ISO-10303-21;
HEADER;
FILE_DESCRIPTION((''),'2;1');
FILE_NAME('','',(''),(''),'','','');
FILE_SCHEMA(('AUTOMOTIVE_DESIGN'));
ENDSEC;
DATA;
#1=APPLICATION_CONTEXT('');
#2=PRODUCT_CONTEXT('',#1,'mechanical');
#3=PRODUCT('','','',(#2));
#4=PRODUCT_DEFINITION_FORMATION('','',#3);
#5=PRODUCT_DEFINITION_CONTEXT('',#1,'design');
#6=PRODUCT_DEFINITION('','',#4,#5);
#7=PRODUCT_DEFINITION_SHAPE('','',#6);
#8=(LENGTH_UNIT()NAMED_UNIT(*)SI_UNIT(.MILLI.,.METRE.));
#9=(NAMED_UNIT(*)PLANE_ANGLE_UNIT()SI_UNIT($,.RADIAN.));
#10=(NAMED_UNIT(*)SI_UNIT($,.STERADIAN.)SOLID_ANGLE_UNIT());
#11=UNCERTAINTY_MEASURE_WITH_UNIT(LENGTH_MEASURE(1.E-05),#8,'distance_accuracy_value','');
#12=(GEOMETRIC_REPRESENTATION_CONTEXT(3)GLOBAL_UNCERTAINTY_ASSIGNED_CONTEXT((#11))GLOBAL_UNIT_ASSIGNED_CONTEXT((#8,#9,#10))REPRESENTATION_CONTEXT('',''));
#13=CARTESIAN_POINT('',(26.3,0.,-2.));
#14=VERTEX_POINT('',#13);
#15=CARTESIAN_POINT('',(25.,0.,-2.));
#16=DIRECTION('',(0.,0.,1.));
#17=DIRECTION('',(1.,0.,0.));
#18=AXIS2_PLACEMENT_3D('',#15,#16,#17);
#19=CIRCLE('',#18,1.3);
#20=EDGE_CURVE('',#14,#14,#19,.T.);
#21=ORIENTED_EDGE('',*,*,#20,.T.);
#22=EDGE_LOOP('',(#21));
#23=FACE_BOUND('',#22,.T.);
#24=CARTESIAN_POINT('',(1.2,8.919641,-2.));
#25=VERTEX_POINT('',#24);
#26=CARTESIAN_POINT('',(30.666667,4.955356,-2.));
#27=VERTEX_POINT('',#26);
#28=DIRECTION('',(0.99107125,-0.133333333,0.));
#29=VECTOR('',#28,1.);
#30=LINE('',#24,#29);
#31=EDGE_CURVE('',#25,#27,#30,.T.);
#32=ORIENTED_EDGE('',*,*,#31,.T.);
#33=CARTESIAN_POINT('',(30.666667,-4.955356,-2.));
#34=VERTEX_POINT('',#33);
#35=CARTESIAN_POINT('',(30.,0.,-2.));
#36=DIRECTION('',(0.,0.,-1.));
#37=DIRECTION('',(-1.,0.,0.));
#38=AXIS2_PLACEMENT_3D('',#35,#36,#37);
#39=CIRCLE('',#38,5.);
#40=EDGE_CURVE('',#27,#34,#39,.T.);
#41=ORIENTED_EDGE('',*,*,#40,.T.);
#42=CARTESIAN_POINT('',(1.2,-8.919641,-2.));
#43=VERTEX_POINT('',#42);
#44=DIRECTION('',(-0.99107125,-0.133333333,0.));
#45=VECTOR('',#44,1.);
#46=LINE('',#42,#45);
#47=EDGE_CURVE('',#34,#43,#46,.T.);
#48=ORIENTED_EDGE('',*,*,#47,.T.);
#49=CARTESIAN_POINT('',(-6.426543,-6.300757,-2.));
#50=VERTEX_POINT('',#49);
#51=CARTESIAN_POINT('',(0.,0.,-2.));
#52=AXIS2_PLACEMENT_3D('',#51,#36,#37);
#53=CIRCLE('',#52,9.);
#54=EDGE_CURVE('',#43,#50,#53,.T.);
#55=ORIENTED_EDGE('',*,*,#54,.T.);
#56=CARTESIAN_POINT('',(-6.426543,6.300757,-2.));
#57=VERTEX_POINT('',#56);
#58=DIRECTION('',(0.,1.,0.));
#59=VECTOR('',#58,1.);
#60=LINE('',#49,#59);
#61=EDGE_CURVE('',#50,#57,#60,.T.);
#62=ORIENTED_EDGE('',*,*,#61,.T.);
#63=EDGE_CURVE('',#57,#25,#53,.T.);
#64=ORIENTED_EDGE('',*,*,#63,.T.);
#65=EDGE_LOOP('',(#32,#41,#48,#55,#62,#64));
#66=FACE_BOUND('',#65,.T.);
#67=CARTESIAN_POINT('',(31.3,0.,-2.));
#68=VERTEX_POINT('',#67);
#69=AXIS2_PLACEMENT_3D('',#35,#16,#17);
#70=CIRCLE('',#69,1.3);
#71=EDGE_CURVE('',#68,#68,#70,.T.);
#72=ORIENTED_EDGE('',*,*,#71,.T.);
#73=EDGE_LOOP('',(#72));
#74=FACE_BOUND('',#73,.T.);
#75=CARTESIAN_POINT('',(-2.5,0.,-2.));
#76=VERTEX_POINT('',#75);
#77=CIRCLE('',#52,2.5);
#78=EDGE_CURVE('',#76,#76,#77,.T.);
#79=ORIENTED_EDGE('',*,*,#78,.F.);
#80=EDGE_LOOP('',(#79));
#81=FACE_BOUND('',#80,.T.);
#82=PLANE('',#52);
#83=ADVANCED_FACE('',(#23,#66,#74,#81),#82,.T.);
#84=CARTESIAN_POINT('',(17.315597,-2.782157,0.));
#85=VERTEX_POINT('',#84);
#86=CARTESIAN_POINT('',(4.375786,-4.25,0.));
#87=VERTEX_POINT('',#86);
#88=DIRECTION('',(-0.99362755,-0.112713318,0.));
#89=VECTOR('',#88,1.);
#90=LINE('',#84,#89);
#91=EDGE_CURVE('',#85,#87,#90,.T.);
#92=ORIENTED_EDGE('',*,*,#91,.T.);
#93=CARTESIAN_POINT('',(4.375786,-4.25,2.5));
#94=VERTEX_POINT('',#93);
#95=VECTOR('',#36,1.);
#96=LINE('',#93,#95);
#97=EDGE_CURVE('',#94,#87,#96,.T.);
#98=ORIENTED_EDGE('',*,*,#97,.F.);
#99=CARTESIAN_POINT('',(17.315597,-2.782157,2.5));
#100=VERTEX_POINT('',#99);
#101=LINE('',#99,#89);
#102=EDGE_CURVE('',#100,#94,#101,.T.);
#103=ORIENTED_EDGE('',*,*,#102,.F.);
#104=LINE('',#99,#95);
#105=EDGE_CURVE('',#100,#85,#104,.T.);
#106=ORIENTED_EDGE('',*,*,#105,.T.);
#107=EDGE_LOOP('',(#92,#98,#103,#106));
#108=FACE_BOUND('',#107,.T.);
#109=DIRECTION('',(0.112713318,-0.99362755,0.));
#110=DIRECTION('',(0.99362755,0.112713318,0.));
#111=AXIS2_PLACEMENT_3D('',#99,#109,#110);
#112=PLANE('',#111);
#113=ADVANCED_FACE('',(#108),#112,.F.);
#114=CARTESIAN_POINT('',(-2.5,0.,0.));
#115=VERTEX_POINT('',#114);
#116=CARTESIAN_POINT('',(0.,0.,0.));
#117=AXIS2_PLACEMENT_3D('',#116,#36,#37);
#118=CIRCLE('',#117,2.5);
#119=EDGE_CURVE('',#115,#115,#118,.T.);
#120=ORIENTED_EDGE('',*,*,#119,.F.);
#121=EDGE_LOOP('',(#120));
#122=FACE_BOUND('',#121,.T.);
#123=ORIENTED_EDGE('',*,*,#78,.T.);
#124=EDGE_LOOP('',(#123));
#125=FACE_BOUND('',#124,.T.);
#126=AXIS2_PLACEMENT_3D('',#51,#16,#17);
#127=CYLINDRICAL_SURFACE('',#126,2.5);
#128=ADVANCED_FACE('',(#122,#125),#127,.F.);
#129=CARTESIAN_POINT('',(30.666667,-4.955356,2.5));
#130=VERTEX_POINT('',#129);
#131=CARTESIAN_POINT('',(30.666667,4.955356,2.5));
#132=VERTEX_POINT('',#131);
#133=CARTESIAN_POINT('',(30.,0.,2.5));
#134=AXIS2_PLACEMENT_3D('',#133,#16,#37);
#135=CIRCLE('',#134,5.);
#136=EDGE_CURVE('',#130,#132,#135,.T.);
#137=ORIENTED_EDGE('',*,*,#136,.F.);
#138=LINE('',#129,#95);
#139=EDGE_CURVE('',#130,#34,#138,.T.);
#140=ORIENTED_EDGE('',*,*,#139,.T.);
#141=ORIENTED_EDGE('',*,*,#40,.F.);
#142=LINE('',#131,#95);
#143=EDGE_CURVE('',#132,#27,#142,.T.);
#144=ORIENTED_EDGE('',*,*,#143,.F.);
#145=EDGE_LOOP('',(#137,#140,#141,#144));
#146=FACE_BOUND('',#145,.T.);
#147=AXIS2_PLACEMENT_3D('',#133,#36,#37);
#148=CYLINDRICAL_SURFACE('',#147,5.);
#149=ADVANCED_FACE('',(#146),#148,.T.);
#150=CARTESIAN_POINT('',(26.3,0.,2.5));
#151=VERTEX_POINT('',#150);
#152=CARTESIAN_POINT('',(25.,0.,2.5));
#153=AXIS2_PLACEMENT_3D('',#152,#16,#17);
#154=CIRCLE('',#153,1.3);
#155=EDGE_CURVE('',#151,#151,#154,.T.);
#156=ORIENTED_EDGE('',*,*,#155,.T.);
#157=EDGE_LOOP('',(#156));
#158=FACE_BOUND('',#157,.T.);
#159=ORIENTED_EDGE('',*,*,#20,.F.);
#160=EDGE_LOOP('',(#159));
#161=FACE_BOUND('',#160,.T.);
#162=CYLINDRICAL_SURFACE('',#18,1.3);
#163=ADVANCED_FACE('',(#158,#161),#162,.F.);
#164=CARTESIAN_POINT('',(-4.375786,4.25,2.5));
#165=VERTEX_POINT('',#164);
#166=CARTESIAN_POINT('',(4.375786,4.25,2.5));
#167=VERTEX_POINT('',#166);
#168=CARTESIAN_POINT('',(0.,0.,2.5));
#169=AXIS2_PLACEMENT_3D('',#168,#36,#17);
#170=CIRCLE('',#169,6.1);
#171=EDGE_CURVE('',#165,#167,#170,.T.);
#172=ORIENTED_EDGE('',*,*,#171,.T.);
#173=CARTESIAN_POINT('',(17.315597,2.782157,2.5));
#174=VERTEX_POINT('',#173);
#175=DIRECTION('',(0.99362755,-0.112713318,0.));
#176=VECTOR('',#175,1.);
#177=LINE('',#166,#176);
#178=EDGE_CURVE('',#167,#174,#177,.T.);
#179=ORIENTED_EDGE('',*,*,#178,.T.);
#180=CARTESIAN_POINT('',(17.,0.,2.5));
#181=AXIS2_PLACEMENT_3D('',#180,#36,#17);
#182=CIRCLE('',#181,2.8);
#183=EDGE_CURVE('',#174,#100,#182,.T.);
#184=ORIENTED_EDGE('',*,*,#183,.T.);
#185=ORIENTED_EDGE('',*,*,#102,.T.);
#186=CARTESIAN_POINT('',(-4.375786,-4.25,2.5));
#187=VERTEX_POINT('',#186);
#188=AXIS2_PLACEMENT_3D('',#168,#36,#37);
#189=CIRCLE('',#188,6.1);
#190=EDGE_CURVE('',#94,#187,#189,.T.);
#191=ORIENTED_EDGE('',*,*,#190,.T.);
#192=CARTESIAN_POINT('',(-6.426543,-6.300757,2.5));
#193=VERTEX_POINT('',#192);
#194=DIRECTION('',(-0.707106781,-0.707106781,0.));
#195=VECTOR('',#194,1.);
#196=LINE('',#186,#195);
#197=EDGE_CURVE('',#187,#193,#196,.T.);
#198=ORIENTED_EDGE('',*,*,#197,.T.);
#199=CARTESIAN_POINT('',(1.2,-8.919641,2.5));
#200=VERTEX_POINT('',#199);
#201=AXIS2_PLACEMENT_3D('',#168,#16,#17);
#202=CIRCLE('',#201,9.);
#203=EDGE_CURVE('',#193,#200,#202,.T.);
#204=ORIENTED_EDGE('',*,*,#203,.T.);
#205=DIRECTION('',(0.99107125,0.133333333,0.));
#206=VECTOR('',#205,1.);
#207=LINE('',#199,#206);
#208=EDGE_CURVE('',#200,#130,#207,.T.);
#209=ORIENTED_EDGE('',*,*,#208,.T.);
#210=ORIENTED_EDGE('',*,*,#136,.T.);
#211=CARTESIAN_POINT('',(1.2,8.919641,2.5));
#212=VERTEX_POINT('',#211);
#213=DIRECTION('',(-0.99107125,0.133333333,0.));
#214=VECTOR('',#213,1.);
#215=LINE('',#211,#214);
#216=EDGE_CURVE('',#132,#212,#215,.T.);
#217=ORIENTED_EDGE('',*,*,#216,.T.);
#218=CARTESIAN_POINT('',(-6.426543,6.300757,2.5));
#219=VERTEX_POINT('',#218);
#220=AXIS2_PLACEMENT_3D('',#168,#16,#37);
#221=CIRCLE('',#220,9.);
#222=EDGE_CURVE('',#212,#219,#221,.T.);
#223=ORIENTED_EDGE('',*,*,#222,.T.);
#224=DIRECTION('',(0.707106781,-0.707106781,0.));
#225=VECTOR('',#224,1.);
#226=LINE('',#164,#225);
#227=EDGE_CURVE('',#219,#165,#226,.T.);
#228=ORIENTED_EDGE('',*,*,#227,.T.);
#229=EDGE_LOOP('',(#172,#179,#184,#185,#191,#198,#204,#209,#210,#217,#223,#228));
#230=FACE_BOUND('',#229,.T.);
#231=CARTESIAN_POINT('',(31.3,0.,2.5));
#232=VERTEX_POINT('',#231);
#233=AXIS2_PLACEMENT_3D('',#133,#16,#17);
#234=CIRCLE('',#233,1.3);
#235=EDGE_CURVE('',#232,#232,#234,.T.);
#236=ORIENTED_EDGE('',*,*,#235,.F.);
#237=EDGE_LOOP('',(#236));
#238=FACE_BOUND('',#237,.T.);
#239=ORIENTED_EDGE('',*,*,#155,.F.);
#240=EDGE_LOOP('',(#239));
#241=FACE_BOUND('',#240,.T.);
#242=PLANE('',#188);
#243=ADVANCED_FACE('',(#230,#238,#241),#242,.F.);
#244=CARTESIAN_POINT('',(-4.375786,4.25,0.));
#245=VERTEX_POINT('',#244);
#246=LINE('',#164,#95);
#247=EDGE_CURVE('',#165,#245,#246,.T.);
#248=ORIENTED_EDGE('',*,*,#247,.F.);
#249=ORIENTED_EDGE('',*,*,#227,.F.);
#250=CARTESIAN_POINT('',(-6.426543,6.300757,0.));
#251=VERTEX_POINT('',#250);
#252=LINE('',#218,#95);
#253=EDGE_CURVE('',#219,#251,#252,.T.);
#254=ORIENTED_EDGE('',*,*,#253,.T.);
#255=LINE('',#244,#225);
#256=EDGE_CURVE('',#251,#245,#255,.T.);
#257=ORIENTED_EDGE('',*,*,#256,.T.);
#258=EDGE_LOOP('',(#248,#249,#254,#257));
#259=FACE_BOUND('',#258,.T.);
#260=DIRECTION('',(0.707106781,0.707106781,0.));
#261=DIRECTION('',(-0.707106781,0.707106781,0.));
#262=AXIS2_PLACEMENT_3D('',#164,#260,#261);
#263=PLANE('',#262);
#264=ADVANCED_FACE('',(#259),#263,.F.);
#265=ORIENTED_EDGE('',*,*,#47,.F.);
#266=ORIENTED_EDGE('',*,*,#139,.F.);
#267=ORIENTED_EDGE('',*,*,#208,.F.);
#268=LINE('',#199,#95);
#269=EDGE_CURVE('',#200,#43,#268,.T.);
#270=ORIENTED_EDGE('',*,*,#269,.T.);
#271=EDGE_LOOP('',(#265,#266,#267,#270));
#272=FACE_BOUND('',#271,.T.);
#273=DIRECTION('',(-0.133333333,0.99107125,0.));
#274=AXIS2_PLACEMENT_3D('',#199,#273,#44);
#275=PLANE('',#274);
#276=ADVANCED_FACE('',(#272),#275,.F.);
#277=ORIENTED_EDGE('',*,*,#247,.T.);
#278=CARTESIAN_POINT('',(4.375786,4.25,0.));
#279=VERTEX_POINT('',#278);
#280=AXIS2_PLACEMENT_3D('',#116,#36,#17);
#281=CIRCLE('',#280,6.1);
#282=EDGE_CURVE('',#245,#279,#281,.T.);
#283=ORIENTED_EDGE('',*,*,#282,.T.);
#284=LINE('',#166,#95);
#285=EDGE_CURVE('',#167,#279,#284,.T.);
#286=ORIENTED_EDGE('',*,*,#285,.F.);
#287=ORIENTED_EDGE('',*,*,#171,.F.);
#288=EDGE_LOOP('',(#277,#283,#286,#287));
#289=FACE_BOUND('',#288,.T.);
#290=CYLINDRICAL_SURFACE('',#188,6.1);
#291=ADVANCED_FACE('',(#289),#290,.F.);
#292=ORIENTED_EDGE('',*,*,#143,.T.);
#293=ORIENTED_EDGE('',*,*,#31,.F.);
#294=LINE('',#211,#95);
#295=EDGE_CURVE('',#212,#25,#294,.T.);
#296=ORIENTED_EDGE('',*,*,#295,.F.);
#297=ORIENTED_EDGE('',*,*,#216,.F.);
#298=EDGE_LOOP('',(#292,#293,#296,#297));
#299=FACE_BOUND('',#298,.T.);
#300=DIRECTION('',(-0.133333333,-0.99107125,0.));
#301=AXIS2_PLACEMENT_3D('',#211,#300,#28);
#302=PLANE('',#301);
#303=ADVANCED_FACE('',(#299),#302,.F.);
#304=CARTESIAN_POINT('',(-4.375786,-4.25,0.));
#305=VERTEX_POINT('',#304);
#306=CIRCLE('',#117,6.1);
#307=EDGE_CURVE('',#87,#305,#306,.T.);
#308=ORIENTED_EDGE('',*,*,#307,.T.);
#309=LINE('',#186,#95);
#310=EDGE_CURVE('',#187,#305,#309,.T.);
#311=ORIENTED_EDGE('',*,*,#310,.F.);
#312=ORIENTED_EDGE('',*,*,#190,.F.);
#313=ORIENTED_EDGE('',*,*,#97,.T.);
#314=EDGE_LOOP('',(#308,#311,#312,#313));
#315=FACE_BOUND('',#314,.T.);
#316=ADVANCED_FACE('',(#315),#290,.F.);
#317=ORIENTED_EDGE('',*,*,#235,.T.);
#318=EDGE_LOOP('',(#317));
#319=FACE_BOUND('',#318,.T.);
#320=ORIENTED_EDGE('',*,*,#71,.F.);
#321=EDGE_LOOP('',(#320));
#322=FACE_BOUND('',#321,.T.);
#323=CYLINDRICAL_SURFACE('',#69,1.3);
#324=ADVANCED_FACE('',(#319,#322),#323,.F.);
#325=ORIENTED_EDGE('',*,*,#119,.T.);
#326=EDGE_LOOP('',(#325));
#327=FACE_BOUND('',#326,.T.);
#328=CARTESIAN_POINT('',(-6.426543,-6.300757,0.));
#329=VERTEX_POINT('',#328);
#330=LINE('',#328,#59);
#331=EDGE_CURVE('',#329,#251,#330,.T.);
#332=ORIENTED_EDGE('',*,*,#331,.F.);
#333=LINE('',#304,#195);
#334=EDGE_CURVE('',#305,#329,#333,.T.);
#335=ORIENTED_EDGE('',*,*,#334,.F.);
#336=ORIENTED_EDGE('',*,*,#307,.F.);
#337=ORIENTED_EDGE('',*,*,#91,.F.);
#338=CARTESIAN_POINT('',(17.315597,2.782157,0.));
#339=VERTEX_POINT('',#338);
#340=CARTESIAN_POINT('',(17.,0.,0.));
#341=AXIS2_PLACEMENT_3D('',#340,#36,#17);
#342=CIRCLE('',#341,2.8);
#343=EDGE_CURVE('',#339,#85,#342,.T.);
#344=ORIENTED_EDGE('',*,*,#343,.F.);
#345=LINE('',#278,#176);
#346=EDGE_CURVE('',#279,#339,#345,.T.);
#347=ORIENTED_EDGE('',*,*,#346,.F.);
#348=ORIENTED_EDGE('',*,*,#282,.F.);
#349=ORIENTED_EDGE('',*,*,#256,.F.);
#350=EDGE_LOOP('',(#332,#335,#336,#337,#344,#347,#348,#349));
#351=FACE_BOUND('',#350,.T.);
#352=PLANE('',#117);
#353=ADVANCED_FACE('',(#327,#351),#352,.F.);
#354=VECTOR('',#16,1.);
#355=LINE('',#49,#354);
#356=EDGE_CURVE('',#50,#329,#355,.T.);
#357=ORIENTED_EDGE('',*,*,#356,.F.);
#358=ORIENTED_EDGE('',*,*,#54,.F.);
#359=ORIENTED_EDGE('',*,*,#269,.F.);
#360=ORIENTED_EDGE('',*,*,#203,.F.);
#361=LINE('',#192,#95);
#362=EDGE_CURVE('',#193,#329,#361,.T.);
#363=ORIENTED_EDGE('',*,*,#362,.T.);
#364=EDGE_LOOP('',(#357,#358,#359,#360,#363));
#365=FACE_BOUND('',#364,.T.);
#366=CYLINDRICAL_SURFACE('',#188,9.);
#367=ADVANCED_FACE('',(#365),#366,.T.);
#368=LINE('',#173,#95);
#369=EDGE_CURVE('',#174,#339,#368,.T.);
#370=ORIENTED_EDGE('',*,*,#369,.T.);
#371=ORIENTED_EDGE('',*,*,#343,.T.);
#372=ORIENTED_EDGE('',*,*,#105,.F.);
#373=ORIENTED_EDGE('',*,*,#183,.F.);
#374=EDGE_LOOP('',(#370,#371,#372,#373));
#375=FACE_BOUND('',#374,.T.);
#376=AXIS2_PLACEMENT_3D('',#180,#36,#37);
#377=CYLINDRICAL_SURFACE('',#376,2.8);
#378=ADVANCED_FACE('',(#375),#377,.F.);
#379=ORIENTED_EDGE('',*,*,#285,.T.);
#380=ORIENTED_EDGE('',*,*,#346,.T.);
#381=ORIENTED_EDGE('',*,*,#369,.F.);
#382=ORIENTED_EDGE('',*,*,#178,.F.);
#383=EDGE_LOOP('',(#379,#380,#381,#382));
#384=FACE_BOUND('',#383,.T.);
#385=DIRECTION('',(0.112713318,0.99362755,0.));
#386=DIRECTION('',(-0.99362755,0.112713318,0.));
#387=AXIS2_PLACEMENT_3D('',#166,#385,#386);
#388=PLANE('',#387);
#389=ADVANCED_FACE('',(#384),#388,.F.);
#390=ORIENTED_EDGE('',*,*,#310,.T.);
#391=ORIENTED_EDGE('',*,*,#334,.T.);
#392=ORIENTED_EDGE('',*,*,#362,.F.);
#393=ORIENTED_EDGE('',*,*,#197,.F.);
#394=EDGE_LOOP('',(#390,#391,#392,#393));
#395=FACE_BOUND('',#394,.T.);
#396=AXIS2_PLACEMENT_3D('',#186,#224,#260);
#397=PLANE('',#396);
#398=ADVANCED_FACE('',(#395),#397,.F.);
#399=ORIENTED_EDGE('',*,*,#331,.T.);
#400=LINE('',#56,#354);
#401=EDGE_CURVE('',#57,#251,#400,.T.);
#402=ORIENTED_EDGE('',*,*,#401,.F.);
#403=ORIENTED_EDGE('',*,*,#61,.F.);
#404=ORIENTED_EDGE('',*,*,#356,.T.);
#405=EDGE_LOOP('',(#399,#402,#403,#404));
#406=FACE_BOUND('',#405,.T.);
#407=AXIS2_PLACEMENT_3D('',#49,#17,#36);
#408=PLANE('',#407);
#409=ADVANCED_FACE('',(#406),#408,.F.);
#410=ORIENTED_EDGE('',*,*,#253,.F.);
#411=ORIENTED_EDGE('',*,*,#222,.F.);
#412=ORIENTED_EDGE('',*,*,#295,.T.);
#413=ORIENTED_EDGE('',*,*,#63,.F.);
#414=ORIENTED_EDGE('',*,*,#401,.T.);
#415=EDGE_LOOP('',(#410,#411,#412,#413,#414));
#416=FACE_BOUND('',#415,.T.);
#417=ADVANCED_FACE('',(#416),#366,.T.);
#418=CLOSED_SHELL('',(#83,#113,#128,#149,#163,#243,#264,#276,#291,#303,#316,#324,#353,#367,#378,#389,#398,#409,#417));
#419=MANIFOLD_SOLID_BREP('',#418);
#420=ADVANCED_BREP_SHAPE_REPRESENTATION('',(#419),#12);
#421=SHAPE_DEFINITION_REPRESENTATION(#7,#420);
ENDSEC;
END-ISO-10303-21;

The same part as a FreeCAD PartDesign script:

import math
import FreeCAD as App
import Part
import Sketcher

doc = App.newDocument("Part")
params = doc.addObject("Spreadsheet::Sheet", "Params")
for row, (alias, value) in enumerate([
    ("sketch1_radius", "9 mm"),
    ("sketch1_radius2", "5 mm"),
    ("sketch1_radius3", "6.1 mm"),
    ("sketch1_radius4", "2.8 mm"),
    ("pad1_length", "2.5 mm"),
    ("sketch2_diameter", "5 mm"),
    ("sketch2_radius", "9 mm"),
    ("sketch2_radius2", "5 mm"),
    ("pad2_length", "2 mm"),
    ("sketch3_diameter", "2.6 mm"),
], start=1):
    params.set(f"A{row}", alias)
    params.set(f"B{row}", "=" + value)
    params.setAlias(f"B{row}", alias)

body = doc.addObject("PartDesign::Body", "Body")

# Sketch on XY plane
sketch1 = doc.addObject("Sketcher::SketchObject", "Sketch")
body.addObject(sketch1)
sketch1.AttachmentSupport = (doc.XY_Plane, [""])
sketch1.MapMode = "FlatFace"
sketch1.addGeometry([
    Part.LineSegment(App.Vector(-6.4, 6.3, 0), App.Vector(-4.4, 4.2, 0)),  # 0
    Part.ArcOfCircle(Part.Circle(App.Vector(0, 0, 0), App.Vector(0, 0, 1), 6.1), math.radians(44), math.radians(136)),  # 1
    Part.LineSegment(App.Vector(4.4, 4.2, 0), App.Vector(17.3, 2.8, 0)),  # 2
    Part.ArcOfCircle(Part.Circle(App.Vector(17, 0, 0), App.Vector(0, 0, 1), 2.8), math.radians(-84), math.radians(84)),  # 3
    Part.LineSegment(App.Vector(17.3, -2.8, 0), App.Vector(4.4, -4.2, 0)),  # 4
    Part.ArcOfCircle(Part.Circle(App.Vector(0, 0, 0), App.Vector(0, 0, 1), 6.1), math.radians(-136), math.radians(-44)),  # 5
    Part.LineSegment(App.Vector(-4.4, -4.2, 0), App.Vector(-6.4, -6.3, 0)),  # 6
    Part.ArcOfCircle(Part.Circle(App.Vector(0, 0, 0), App.Vector(0, 0, 1), 9), math.radians(-136), math.radians(-82)),  # 7
    Part.LineSegment(App.Vector(1.2, -8.9, 0), App.Vector(30.7, -5, 0)),  # 8
    Part.ArcOfCircle(Part.Circle(App.Vector(30, 0, 0), App.Vector(0, 0, 1), 5), math.radians(-82), math.radians(82)),  # 9
    Part.LineSegment(App.Vector(30.7, 5, 0), App.Vector(1.2, 8.9, 0)),  # 10
    Part.ArcOfCircle(Part.Circle(App.Vector(0, 0, 0), App.Vector(0, 0, 1), 9), math.radians(82), math.radians(136)),  # 11
], False)
sketch1.addConstraint([
    Sketcher.Constraint("Coincident", 0, 2, 1, 2),
    Sketcher.Constraint("Coincident", 1, 1, 2, 1),
    Sketcher.Constraint("Tangent", 2, 2, 3, 2),
    Sketcher.Constraint("Tangent", 3, 1, 4, 1),
    Sketcher.Constraint("Coincident", 4, 2, 5, 2),
    Sketcher.Constraint("Coincident", 5, 1, 6, 1),
    Sketcher.Constraint("Coincident", 6, 2, 7, 1),
    Sketcher.Constraint("Tangent", 7, 2, 8, 1),
    Sketcher.Constraint("Tangent", 8, 2, 9, 1),
    Sketcher.Constraint("Tangent", 9, 2, 10, 1),
    Sketcher.Constraint("Tangent", 10, 2, 11, 1),
    Sketcher.Constraint("Coincident", 11, 2, 0, 1),
    Sketcher.Constraint("Coincident", 1, 3, -1, 1),
    Sketcher.Constraint("Coincident", 5, 3, -1, 1),
    Sketcher.Constraint("Coincident", 7, 3, -1, 1),
    Sketcher.Constraint("Coincident", 11, 3, -1, 1),
    Sketcher.Constraint("Equal", 1, 5),
    Sketcher.Constraint("Equal", 7, 11),
    Sketcher.Constraint("Symmetric", 2, 2, 3, 1, -1),
    Sketcher.Constraint("PointOnObject", 9, 3, -1),
    Sketcher.Constraint("Perpendicular", 0, 6),
    Sketcher.Constraint("Horizontal", 0, 2, 1, 1),
    Sketcher.Constraint("Horizontal", 4, 2, 5, 1),
    Sketcher.Constraint("Vertical", 6, 2, 11, 2),
    Sketcher.Constraint("Radius", 7, 9.0),
    Sketcher.Constraint("Radius", 9, 5.0),
    Sketcher.Constraint("Radius", 1, 6.1),
    Sketcher.Constraint("Radius", 3, 2.8),
    Sketcher.Constraint("DistanceX", -1, 1, 3, 3, 17.0),
    Sketcher.Constraint("DistanceX", -1, 1, 9, 3, 30.0),
    Sketcher.Constraint("DistanceY", 4, 2, 1, 1, 8.5),
])
sketch1.setExpression("Constraints[24]", "Params.sketch1_radius")
sketch1.setExpression("Constraints[25]", "Params.sketch1_radius2")
sketch1.setExpression("Constraints[26]", "Params.sketch1_radius3")
sketch1.setExpression("Constraints[27]", "Params.sketch1_radius4")
pad1 = doc.addObject("PartDesign::Pad", "Pad")
body.addObject(pad1)
pad1.Profile = sketch1
pad1.setExpression("Length", "Params.pad1_length")

# Sketch on XY plane
sketch2 = doc.addObject("Sketcher::SketchObject", "Sketch001")
body.addObject(sketch2)
sketch2.AttachmentSupport = (doc.XY_Plane, [""])
sketch2.MapMode = "FlatFace"
sketch2.addGeometry([
    Part.LineSegment(App.Vector(30.7, -5, 0), App.Vector(1.2, -8.9, 0)),  # 0
    Part.ArcOfCircle(Part.Circle(App.Vector(0, 0, 0), App.Vector(0, 0, 1), 9), math.radians(-136), math.radians(-82)),  # 1
    Part.LineSegment(App.Vector(-6.4, -6.3, 0), App.Vector(-6.4, 6.3, 0)),  # 2
    Part.ArcOfCircle(Part.Circle(App.Vector(0, 0, 0), App.Vector(0, 0, 1), 9), math.radians(82), math.radians(136)),  # 3
    Part.LineSegment(App.Vector(1.2, 8.9, 0), App.Vector(30.7, 5, 0)),  # 4
    Part.ArcOfCircle(Part.Circle(App.Vector(30, 0, 0), App.Vector(0, 0, 1), 5), math.radians(-82), math.radians(82)),  # 5
    Part.Circle(App.Vector(0, 0, 0), App.Vector(0, 0, 1), 2.5),  # 6
], False)
sketch2.addConstraint([
    Sketcher.Constraint("Tangent", 0, 2, 1, 2),
    Sketcher.Constraint("Coincident", 1, 1, 2, 1),
    Sketcher.Constraint("Coincident", 2, 2, 3, 2),
    Sketcher.Constraint("Tangent", 3, 1, 4, 1),
    Sketcher.Constraint("Tangent", 4, 2, 5, 2),
    Sketcher.Constraint("Tangent", 5, 1, 0, 1),
    Sketcher.Constraint("Vertical", 2),
    Sketcher.Constraint("Coincident", 1, 3, -1, 1),
    Sketcher.Constraint("Coincident", 3, 3, -1, 1),
    Sketcher.Constraint("Coincident", 6, 3, -1, 1),
    Sketcher.Constraint("Equal", 1, 3),
    Sketcher.Constraint("PointOnObject", 5, 3, -1),
    Sketcher.Constraint("Diameter", 6, 5.0),
    Sketcher.Constraint("Radius", 1, 9.0),
    Sketcher.Constraint("Radius", 5, 5.0),
    Sketcher.Constraint("DistanceX", -1, 1, 5, 3, 30.0),
    Sketcher.Constraint("DistanceY", 0, 2, 2, 2, 15.220399),
])
sketch2.setExpression("Constraints[12]", "Params.sketch2_diameter")
sketch2.setExpression("Constraints[13]", "Params.sketch2_radius")
sketch2.setExpression("Constraints[14]", "Params.sketch2_radius2")
pad2 = doc.addObject("PartDesign::Pad", "Pad001")
body.addObject(pad2)
pad2.Profile = sketch2
pad2.setExpression("Length", "Params.pad2_length")
pad2.Reversed = True

# Sketch on XY plane
sketch3 = doc.addObject("Sketcher::SketchObject", "Sketch002")
body.addObject(sketch3)
sketch3.AttachmentSupport = (doc.XY_Plane, [""])
sketch3.MapMode = "FlatFace"
sketch3.AttachmentOffset = App.Placement(App.Vector(0, 0, 2.5), App.Rotation())
sketch3.addGeometry([
    Part.Circle(App.Vector(30, 0, 0), App.Vector(0, 0, 1), 1.3),
    Part.Circle(App.Vector(25, 0, 0), App.Vector(0, 0, 1), 1.3),
], False)
sketch3.addConstraint([
    Sketcher.Constraint("Equal", 0, 1),
    Sketcher.Constraint("PointOnObject", 0, 3, -1),
    Sketcher.Constraint("PointOnObject", 1, 3, -1),
    Sketcher.Constraint("Diameter", 0, 2.6),
    Sketcher.Constraint("DistanceX", -1, 1, 0, 3, 30.0),
    Sketcher.Constraint("DistanceX", -1, 1, 1, 3, 25.0),
])
sketch3.setExpression("Constraints[3]", "Params.sketch3_diameter")
pocket1 = doc.addObject("PartDesign::Pocket", "Pocket")
body.addObject(pocket1)
pocket1.Profile = sketch3
pocket1.Type = "ThroughAll"

doc.recompute()
